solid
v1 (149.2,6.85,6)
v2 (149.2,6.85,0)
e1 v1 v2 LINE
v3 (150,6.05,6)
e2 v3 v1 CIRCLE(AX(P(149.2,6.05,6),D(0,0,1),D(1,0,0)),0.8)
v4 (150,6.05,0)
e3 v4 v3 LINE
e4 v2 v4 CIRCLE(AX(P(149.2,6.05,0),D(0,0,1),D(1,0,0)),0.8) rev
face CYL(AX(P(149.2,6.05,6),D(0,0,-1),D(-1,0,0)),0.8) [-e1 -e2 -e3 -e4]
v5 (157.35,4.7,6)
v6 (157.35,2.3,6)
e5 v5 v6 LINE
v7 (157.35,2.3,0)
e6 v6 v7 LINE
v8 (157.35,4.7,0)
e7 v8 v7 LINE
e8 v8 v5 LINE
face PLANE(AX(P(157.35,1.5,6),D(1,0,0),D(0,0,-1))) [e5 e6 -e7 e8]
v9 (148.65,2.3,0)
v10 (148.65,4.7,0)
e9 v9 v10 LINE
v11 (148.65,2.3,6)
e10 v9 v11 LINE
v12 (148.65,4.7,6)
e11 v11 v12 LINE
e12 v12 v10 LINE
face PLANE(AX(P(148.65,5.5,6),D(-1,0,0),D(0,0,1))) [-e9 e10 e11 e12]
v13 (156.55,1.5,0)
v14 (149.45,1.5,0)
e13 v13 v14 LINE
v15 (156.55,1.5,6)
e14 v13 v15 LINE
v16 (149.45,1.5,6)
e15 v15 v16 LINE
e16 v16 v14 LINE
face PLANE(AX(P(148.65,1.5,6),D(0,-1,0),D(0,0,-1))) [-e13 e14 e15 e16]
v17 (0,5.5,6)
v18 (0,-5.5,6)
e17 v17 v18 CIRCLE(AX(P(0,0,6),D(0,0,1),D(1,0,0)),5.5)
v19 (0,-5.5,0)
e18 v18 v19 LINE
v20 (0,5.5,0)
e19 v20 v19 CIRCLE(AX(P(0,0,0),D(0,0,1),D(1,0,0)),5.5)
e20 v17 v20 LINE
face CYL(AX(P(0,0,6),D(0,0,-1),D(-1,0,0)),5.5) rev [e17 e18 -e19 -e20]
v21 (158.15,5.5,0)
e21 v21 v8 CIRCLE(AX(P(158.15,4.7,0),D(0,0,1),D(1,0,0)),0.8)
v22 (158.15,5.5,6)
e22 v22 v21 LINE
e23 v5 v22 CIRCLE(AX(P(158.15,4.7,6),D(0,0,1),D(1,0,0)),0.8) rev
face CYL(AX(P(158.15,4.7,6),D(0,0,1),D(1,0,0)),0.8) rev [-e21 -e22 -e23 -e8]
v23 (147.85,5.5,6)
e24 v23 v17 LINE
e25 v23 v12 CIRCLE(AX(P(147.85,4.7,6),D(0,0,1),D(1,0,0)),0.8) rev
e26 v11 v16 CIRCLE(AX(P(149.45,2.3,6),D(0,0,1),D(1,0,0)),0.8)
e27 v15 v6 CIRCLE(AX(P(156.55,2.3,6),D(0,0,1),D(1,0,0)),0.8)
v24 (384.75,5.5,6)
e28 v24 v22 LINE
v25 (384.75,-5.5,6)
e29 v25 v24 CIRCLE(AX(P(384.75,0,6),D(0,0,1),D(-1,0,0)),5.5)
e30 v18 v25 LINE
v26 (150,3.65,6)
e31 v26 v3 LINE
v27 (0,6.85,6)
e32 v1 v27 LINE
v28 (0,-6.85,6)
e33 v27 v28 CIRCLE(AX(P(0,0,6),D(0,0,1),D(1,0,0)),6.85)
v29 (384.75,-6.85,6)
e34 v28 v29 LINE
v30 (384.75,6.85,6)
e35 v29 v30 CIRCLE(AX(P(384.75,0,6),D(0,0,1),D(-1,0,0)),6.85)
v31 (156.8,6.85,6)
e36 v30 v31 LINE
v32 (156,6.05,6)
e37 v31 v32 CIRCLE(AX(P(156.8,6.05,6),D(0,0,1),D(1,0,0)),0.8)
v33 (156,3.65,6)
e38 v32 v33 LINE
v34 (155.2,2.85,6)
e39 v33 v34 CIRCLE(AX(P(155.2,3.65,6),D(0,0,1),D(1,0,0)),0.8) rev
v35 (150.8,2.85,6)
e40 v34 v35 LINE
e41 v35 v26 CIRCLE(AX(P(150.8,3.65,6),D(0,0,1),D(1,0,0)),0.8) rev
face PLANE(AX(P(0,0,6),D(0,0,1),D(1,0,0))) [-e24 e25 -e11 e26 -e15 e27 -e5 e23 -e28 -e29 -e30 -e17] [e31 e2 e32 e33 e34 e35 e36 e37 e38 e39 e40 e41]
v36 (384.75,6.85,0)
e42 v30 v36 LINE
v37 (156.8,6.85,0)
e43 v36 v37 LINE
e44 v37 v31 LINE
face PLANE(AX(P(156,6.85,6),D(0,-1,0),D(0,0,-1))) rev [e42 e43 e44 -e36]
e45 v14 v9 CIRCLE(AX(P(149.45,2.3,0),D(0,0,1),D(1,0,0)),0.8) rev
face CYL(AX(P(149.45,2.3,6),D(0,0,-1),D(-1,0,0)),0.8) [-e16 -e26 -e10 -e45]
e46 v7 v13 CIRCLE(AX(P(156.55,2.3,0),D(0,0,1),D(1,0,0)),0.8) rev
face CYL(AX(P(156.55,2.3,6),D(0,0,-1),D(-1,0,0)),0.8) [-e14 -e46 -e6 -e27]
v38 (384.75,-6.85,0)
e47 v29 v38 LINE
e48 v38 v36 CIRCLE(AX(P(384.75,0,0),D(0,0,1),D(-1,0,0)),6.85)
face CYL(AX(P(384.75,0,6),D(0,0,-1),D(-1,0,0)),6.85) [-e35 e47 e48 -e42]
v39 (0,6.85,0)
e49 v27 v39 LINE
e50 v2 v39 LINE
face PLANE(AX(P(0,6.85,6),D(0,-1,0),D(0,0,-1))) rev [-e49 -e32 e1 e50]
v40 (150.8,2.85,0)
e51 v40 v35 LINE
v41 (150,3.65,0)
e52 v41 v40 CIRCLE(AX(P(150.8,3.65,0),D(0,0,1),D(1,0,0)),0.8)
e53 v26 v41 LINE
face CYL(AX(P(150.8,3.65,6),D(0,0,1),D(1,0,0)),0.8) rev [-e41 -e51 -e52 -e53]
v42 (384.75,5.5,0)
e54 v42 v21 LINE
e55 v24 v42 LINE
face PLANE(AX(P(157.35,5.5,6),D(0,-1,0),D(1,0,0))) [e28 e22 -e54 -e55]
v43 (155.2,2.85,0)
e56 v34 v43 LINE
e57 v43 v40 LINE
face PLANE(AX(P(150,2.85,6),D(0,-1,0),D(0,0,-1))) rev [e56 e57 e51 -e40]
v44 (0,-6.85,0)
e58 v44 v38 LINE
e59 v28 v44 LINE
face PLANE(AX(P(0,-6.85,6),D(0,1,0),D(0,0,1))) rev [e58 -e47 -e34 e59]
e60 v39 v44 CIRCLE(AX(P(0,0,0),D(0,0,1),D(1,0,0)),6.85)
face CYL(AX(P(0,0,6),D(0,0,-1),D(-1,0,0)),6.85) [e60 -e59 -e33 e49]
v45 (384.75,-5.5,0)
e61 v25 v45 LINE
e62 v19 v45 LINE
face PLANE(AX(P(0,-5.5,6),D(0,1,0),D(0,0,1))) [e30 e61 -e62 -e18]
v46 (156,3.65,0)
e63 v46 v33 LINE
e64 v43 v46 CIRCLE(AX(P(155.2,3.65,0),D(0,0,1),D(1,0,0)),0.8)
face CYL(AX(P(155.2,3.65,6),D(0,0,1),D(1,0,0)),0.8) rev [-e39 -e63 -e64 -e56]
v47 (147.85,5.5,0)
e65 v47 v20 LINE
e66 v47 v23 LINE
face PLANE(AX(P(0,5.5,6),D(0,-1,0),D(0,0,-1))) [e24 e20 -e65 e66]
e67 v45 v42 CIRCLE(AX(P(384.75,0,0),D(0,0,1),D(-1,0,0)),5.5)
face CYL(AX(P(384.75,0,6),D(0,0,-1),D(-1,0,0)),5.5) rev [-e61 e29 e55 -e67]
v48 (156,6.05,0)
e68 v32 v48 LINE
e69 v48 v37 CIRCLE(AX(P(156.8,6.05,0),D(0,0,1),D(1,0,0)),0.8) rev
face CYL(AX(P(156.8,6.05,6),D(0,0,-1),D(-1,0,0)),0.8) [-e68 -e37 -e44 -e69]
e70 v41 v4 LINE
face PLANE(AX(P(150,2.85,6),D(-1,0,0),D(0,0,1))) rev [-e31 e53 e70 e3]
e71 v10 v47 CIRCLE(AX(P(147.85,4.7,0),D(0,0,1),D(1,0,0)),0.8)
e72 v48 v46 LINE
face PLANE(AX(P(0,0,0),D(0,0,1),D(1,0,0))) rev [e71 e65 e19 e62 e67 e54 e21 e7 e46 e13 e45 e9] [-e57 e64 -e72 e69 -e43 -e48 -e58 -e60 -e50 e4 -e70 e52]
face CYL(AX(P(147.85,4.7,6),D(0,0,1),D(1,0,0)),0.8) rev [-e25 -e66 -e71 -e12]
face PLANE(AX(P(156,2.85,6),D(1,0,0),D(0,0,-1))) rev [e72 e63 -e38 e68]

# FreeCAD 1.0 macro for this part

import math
import FreeCAD as App
import Part
import Sketcher
from FreeCAD import Vector
Q = App.Units.Quantity


def edges_at(feature, points):
    """Names of the edges that pass closest to the given points."""
    edges = feature.Shape.Edges
    near = lambda p: min(range(len(edges)), key=lambda i: edges[i].distToShape(Part.Vertex(*p))[0])
    return sorted({f"Edge{near(p) + 1}" for p in points})

doc = App.newDocument("Part")
body = doc.addObject("PartDesign::Body", "Body")

sketch1 = body.newObject("Sketcher::SketchObject", "Sketch")
sketch1.AttachmentSupport = (doc.getObject("XY_Plane"), [""])
sketch1.MapMode = "FlatFace"
sketch1.addGeometry([
    Part.LineSegment(Vector(150, 6.85, 0), Vector(0, 6.85, 0)),
    Part.ArcOfCircle(Part.Circle(Vector(0, 0, 0), Vector(0, 0, 1), 6.85), math.radians(90), math.radians(270)),
    Part.LineSegment(Vector(0, -6.85, 0), Vector(384.75, -6.85, 0)),
    Part.ArcOfCircle(Part.Circle(Vector(384.75, 0, 0), Vector(0, 0, 1), 6.85), math.radians(-90), math.radians(90)),
    Part.LineSegment(Vector(384.75, 6.85, 0), Vector(156, 6.85, 0)),
    Part.LineSegment(Vector(156, 6.85, 0), Vector(156, 2.85, 0)),
    Part.LineSegment(Vector(156, 2.85, 0), Vector(150, 2.85, 0)),
    Part.LineSegment(Vector(150, 2.85, 0), Vector(150, 6.85, 0)),
    Part.LineSegment(Vector(0, 5.5, 0), Vector(148.65, 5.5, 0)),
    Part.LineSegment(Vector(148.65, 5.5, 0), Vector(148.65, 1.5, 0)),
    Part.LineSegment(Vector(148.65, 1.5, 0), Vector(157.35, 1.5, 0)),
    Part.LineSegment(Vector(157.35, 1.5, 0), Vector(157.35, 5.5, 0)),
    Part.LineSegment(Vector(157.35, 5.5, 0), Vector(384.75, 5.5, 0)),
    Part.ArcOfCircle(Part.Circle(Vector(384.75, 0, 0), Vector(0, 0, 1), 5.5), math.radians(-90), math.radians(90)),
    Part.LineSegment(Vector(384.75, -5.5, 0), Vector(0, -5.5, 0)),
    Part.ArcOfCircle(Part.Circle(Vector(0, 0, 0), Vector(0, 0, 1), 5.5), math.radians(90), math.radians(270)),
], False)
sketch1.addConstraint([
    Sketcher.Constraint("Tangent", 0, 2, 1, 1),
    Sketcher.Constraint("Tangent", 1, 2, 2, 1),
    Sketcher.Constraint("Tangent", 2, 2, 3, 1),
    Sketcher.Constraint("Tangent", 3, 2, 4, 1),
    Sketcher.Constraint("Coincident", 4, 2, 5, 1),
    Sketcher.Constraint("Coincident", 5, 2, 6, 1),
    Sketcher.Constraint("Coincident", 6, 2, 7, 1),
    Sketcher.Constraint("Coincident", 7, 2, 0, 1),
    Sketcher.Constraint("Coincident", 8, 2, 9, 1),
    Sketcher.Constraint("Coincident", 9, 2, 10, 1),
    Sketcher.Constraint("Coincident", 10, 2, 11, 1),
    Sketcher.Constraint("Coincident", 11, 2, 12, 1),
    Sketcher.Constraint("Tangent", 12, 2, 13, 2),
    Sketcher.Constraint("Tangent", 13, 1, 14, 1),
    Sketcher.Constraint("Tangent", 14, 2, 15, 2),
    Sketcher.Constraint("Tangent", 15, 1, 8, 1),
    Sketcher.Constraint("Horizontal", 0),
    Sketcher.Constraint("Horizontal", 2),
    Sketcher.Constraint("Horizontal", 4),
    Sketcher.Constraint("Vertical", 5),
    Sketcher.Constraint("Horizontal", 6),
    Sketcher.Constraint("Vertical", 7),
    Sketcher.Constraint("Horizontal", 8),
    Sketcher.Constraint("Vertical", 9),
    Sketcher.Constraint("Horizontal", 10),
    Sketcher.Constraint("Vertical", 11),
    Sketcher.Constraint("Horizontal", 12),
    Sketcher.Constraint("Horizontal", 14),
    Sketcher.Constraint("Coincident", 1, 3, -1, 1),
    Sketcher.Constraint("Coincident", 15, 3, -1, 1),
    Sketcher.Constraint("Coincident", 13, 3, 3, 3),
    Sketcher.Constraint("Equal", 1, 3),
    Sketcher.Constraint("Equal", 7, 9),
    Sketcher.Constraint("Radius", 13, Q("5.5 mm")),
    Sketcher.Constraint("DistanceX", 0, 2, 0, 1, Q("150 mm")),
    Sketcher.Constraint("DistanceX", 6, 2, 6, 1, Q("6 mm")),
    Sketcher.Constraint("DistanceY", 5, 2, 5, 1, Q("4 mm")),
    Sketcher.Constraint("Radius", 1, Q("6.85 mm")),
    Sketcher.Constraint("DistanceX", 10, 1, 10, 2, Q("8.7 mm")),
    Sketcher.Constraint("DistanceX", 12, 1, 12, 2, Q("227.4 mm")),
    Sketcher.Constraint("DistanceX", 2, 1, 2, 2, Q("384.75 mm")),
])
pad1 = body.newObject("PartDesign::Pad", "Pad")
pad1.Profile = sketch1
pad1.Length = 6
doc.recompute()

fillet = body.newObject("PartDesign::Fillet", "Fillet")
fillet.Base = (pad1, edges_at(pad1, [
    (150, 6.85, 3),
    (150, 2.85, 3),
    (156, 2.85, 3),
    (156, 6.85, 3),
    (157.35, 5.5, 3),
    (157.35, 1.5, 3),
    (148.65, 1.5, 3),
    (148.65, 5.5, 3),
]))
fillet.Radius = 0.8

doc.recompute()
